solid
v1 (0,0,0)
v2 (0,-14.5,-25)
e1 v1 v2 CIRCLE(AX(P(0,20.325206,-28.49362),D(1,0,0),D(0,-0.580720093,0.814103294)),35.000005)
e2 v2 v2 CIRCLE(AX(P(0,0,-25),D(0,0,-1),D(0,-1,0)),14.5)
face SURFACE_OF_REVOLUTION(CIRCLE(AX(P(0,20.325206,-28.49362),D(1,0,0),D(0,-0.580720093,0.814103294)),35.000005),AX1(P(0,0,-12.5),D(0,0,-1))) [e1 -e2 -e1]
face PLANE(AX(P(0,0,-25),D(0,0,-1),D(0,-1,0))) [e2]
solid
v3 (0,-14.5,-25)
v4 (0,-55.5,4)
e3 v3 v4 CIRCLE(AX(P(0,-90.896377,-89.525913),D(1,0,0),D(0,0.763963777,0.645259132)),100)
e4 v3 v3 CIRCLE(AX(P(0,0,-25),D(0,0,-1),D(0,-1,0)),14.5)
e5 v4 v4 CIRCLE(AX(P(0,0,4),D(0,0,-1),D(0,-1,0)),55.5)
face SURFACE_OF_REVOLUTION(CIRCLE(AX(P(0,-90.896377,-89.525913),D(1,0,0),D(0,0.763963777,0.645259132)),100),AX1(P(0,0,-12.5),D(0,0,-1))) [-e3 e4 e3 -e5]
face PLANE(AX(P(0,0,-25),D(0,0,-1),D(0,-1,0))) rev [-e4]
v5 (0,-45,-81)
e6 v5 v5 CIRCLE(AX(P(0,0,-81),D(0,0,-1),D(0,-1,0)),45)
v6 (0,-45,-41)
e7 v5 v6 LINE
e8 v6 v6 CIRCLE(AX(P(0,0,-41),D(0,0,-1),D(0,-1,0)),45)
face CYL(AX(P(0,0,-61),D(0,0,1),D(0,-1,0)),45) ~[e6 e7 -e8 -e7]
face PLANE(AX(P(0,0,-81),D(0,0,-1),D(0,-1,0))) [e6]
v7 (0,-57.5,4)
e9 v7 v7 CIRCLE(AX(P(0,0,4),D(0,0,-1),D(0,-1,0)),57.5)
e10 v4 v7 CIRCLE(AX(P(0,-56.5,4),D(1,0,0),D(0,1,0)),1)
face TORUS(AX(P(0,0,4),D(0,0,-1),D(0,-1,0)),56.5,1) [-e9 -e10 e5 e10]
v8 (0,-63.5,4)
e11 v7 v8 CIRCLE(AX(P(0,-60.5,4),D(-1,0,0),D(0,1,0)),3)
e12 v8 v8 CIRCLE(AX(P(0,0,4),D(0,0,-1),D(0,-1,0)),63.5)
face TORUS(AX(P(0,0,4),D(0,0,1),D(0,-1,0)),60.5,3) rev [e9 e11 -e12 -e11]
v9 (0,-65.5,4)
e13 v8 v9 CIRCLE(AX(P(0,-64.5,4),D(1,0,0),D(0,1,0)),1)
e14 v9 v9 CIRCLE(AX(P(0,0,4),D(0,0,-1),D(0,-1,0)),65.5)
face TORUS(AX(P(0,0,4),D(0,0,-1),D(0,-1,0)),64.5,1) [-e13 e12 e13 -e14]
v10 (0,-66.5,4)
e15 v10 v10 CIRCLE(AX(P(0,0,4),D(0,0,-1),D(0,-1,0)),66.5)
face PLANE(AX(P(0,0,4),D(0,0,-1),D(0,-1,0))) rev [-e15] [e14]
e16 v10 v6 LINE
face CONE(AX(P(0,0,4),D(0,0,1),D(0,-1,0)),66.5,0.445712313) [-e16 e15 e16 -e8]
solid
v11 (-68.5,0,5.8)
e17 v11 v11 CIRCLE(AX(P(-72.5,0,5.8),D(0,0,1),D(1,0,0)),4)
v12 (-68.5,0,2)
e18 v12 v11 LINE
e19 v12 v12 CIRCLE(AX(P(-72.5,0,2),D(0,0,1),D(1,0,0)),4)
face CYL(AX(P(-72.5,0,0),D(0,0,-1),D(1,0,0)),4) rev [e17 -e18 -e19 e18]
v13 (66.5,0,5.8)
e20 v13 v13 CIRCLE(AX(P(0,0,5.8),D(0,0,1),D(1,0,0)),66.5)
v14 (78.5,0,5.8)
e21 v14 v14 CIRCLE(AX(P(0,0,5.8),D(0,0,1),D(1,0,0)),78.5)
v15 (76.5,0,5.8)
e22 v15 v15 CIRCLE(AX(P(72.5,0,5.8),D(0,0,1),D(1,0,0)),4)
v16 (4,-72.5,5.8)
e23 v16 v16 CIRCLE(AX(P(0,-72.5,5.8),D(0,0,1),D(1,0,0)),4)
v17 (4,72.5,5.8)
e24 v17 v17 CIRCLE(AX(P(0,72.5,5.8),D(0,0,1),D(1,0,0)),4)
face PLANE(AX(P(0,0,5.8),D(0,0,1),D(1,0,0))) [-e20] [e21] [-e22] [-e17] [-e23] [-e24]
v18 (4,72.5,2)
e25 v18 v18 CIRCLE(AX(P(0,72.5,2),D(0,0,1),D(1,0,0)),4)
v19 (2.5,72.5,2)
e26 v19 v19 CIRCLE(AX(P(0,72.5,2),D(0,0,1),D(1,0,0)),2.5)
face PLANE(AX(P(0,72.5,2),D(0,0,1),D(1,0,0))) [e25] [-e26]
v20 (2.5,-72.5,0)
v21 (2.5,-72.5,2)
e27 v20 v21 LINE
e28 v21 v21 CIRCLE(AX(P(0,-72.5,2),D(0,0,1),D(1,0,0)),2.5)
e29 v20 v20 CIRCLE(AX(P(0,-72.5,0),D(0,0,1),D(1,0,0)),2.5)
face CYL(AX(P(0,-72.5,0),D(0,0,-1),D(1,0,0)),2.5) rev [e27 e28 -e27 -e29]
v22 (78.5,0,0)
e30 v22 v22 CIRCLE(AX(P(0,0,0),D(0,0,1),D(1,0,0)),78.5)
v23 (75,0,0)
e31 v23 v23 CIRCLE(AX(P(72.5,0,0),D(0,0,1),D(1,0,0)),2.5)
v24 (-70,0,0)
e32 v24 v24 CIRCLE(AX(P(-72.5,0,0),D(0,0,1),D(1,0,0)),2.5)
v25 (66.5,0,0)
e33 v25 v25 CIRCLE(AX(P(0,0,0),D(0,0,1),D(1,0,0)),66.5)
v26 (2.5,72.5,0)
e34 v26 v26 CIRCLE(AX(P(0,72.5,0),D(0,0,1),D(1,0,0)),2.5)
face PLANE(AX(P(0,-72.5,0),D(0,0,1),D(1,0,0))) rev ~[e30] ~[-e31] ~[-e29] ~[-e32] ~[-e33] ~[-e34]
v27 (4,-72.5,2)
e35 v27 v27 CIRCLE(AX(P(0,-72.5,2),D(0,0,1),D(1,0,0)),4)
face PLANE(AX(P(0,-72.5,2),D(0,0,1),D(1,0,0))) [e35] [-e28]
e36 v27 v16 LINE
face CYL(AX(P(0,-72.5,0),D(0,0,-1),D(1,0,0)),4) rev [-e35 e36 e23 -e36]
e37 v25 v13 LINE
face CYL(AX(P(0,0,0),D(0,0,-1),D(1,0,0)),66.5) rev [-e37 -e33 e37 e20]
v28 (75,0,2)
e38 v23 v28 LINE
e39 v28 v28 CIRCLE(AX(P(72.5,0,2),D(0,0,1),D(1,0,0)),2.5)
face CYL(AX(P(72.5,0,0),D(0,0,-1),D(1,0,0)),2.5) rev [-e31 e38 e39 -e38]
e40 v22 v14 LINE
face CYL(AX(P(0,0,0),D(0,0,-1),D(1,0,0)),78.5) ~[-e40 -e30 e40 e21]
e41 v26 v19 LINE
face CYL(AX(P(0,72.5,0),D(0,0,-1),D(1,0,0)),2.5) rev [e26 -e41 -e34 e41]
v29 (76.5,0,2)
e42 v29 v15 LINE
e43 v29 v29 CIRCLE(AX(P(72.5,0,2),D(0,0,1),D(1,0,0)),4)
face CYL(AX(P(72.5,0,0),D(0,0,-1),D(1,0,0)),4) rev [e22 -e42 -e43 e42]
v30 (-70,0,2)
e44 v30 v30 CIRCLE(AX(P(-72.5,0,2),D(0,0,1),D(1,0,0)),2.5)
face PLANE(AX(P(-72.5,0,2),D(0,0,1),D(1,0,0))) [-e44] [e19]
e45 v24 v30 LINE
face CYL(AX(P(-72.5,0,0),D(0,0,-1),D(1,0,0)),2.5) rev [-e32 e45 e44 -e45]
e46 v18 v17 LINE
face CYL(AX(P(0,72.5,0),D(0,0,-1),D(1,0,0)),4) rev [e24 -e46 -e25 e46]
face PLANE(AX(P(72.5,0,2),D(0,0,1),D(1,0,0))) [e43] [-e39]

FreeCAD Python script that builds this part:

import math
import FreeCAD as App
import Part
import Sketcher

V = App.Vector
Q = App.Units.Quantity

doc = App.newDocument("Part")
params = doc.addObject("Spreadsheet::Sheet", "Params")
for row, (alias, value) in enumerate([
    ("sketch1_diameter", "157 mm"),
    ("sketch1_diameter2", "8 mm"),
    ("sketch1_diameter3", "133 mm"),
    ("pad1_length", "5.8 mm"),
    ("sketch2_diameter", "8 mm"),
    ("sketch2_diameter2", "5 mm"),
    ("pad2_length", "2 mm"),
    ("sketch3_radius", "100 mm"),
    ("sketch3_radius2", "1 mm"),
    ("sketch3_radius3", "3 mm"),
    ("sketch3_width", "1 mm"),
    ("sketch3_width2", "45 mm"),
    ("revolution_angle", "360 deg"),
    ("sketch4_height", "25 mm"),
    ("sketch4_width", "14.5 mm"),
    ("revolution2_angle", "360 deg"),
], start=1):
    params.set(f"A{row}", alias)
    params.set(f"B{row}", "=" + value)
    params.setAlias(f"B{row}", alias)

body = doc.addObject("PartDesign::Body", "Body")

# Sketch on XY plane
sketch1 = body.newObject("Sketcher::SketchObject", "Sketch")
sketch1.AttachmentSupport = (doc.getObject("XY_Plane"), [""])
sketch1.MapMode = "FlatFace"
sketch1.addGeometry([
    Part.Circle(V(0, 0, 0), V(0, 0, 1), 78.5),  # 0
    Part.Circle(V(0, -72.5, 0), V(0, 0, 1), 4),  # 1
    Part.Circle(V(-72.5, 0, 0), V(0, 0, 1), 4),  # 2
    Part.Circle(V(0, 0, 0), V(0, 0, 1), 66.5),  # 3
    Part.Circle(V(72.5, 0, 0), V(0, 0, 1), 4),  # 4
    Part.Circle(V(0, 72.5, 0), V(0, 0, 1), 4),  # 5
], False)
sketch1.addConstraint([
    Sketcher.Constraint("Coincident", 0, 3, -1, 1),
    Sketcher.Constraint("Coincident", 3, 3, -1, 1),
    Sketcher.Constraint("Equal", 1, 2),
    Sketcher.Constraint("Equal", 2, 4),
    Sketcher.Constraint("Equal", 4, 5),
    Sketcher.Constraint("Symmetric", 2, 3, 4, 3, -1, 1),
    Sketcher.Constraint("Symmetric", 1, 3, 5, 3, -1, 1),
    Sketcher.Constraint("PointOnObject", 1, 3, -2),
    Sketcher.Constraint("PointOnObject", 2, 3, -1),
    Sketcher.Constraint("Diameter", 0, Q("157 mm")),
    Sketcher.Constraint("Diameter", 1, Q("8 mm")),
    Sketcher.Constraint("Diameter", 3, Q("133 mm")),
    Sketcher.Constraint("DistanceX", 2, 3, 4, 3, Q("145 mm")),
    Sketcher.Constraint("DistanceY", 1, 3, 5, 3, Q("145 mm")),
])
sketch1.setExpression("Constraints[9]", "Params.sketch1_diameter")
sketch1.setExpression("Constraints[10]", "Params.sketch1_diameter2")
sketch1.setExpression("Constraints[11]", "Params.sketch1_diameter3")
pad1 = body.newObject("PartDesign::Pad", "Pad")
pad1.Profile = sketch1
pad1.setExpression("Length", "Params.pad1_length")

# Sketch on XY plane
sketch2 = body.newObject("Sketcher::SketchObject", "Sketch001")
sketch2.AttachmentSupport = (doc.getObject("XY_Plane"), [""])
sketch2.MapMode = "FlatFace"
sketch2.addGeometry([
    Part.Circle(V(0, -72.5, 0), V(0, 0, 1), 4),  # 0
    Part.Circle(V(0, -72.5, 0), V(0, 0, 1), 2.5),  # 1
    Part.Circle(V(-72.5, 0, 0), V(0, 0, 1), 4),  # 2
    Part.Circle(V(-72.5, 0, 0), V(0, 0, 1), 2.5),  # 3
    Part.Circle(V(0, 72.5, 0), V(0, 0, 1), 4),  # 4
    Part.Circle(V(0, 72.5, 0), V(0, 0, 1), 2.5),  # 5
    Part.Circle(V(72.5, 0, 0), V(0, 0, 1), 4),  # 6
    Part.Circle(V(72.5, 0, 0), V(0, 0, 1), 2.5),  # 7
], False)
sketch2.addConstraint([
    Sketcher.Constraint("Coincident", 1, 3, 0, 3),
    Sketcher.Constraint("Coincident", 3, 3, 2, 3),
    Sketcher.Constraint("Coincident", 5, 3, 4, 3),
    Sketcher.Constraint("Coincident", 7, 3, 6, 3),
    Sketcher.Constraint("Equal", 0, 2),
    Sketcher.Constraint("Equal", 1, 3),
    Sketcher.Constraint("Equal", 2, 4),
    Sketcher.Constraint("Equal", 3, 5),
    Sketcher.Constraint("Equal", 4, 6),
    Sketcher.Constraint("Equal", 5, 7),
    Sketcher.Constraint("Symmetric", 0, 3, 4, 3, -1, 1),
    Sketcher.Constraint("Symmetric", 2, 3, 6, 3, -1, 1),
    Sketcher.Constraint("PointOnObject", 0, 3, -2),
    Sketcher.Constraint("PointOnObject", 2, 3, -1),
    Sketcher.Constraint("Diameter", 0, Q("8 mm")),
    Sketcher.Constraint("Diameter", 1, Q("5 mm")),
    Sketcher.Constraint("DistanceY", 0, 3, 4, 3, Q("145 mm")),
    Sketcher.Constraint("DistanceX", 2, 3, 6, 3, Q("145 mm")),
])
sketch2.setExpression("Constraints[14]", "Params.sketch2_diameter")
sketch2.setExpression("Constraints[15]", "Params.sketch2_diameter2")
pad2 = body.newObject("PartDesign::Pad", "Pad001")
pad2.Profile = sketch2
pad2.setExpression("Length", "Params.pad2_length")
body2 = doc.addObject("PartDesign::Body", "Body001")

# Sketch on YZ plane
sketch3 = body2.newObject("Sketcher::SketchObject", "Sketch002")
sketch3.AttachmentSupport = (doc.getObject("YZ_Plane001"), [""])
sketch3.MapMode = "FlatFace"
sketch3.addGeometry([
    Part.LineSegment(V(0, -25, 0), V(-14.5, -25, 0)),  # 0
    Part.ArcOfCircle(Part.Circle(V(-90.9, -89.5, 0), V(0, 0, 1), 100), math.radians(40), math.radians(69)),  # 1
    Part.ArcOfCircle(Part.Circle(V(-56.5, 4, 0), V(0, 0, 1), 1), math.radians(0), math.radians(180)),  # 2
    Part.ArcOfCircle(Part.Circle(V(-60.5, 4, 0), V(0, 0, 1), 3), math.radians(180), math.radians(360)),  # 3
    Part.ArcOfCircle(Part.Circle(V(-64.5, 4, 0), V(0, 0, 1), 1), math.radians(0), math.radians(180)),  # 4
    Part.LineSegment(V(-65.5, 4, 0), V(-66.5, 4, 0)),  # 5
    Part.LineSegment(V(-66.5, 4, 0), V(-45, -41, 0)),  # 6
    Part.LineSegment(V(-45, -41, 0), V(-45, -81, 0)),  # 7
    Part.LineSegment(V(-45, -81, 0), V(0, -81, 0)),  # 8
    Part.LineSegment(V(0, -81, 0), V(0, -25, 0)),  # 9
], False)
sketch3.addConstraint([
    Sketcher.Constraint("Coincident", 0, 2, 1, 1),
    Sketcher.Constraint("Coincident", 1, 2, 2, 1),
    Sketcher.Constraint("Tangent", 2, 2, 3, 2),
    Sketcher.Constraint("Tangent", 3, 1, 4, 1),
    Sketcher.Constraint("Coincident", 4, 2, 5, 1),
    Sketcher.Constraint("Coincident", 5, 2, 6, 1),
    Sketcher.Constraint("Coincident", 6, 2, 7, 1),
    Sketcher.Constraint("Coincident", 7, 2, 8, 1),
    Sketcher.Constraint("Coincident", 8, 2, 9, 1),
    Sketcher.Constraint("Coincident", 9, 2, 0, 1),
    Sketcher.Constraint("Horizontal", 0),
    Sketcher.Constraint("Horizontal", 5),
    Sketcher.Constraint("Vertical", 7),
    Sketcher.Constraint("Horizontal", 8),
    Sketcher.Constraint("Vertical", 9),
    Sketcher.Constraint("Equal", 2, 4),
    Sketcher.Constraint("PointOnObject", 8, 2, -2),
    Sketcher.Constraint("Horizontal", 2, 3, 3, 3),
    Sketcher.Constraint("Horizontal", 3, 3, 4, 3),
    Sketcher.Constraint("Horizontal", 4, 3, 1, 2),
    Sketcher.Constraint("Horizontal", 3, 1, 4, 2),
    Sketcher.Constraint("Radius", 1, Q("100 mm")),
    Sketcher.Constraint("Radius", 2, Q("1 mm")),
    Sketcher.Constraint("Radius", 3, Q("3 mm")),
    Sketcher.Constraint("DistanceX", 5, 2, 5, 1, Q("1 mm")),
    Sketcher.Constraint("DistanceX", 8, 1, 8, 2, Q("45 mm")),
    Sketcher.Constraint("DistanceY", 7, 2, 7, 1, Q("40 mm")),
    Sketcher.Constraint("DistanceY", 9, 1, 9, 2, Q("56 mm")),
    Sketcher.Constraint("DistanceX", 0, 2, 0, 1, Q("14.5 mm")),
    Sketcher.Constraint("DistanceY", -1, 1, 2, 3, Q("4 mm")),
    Sketcher.Constraint("DistanceY", 0, 2, -1, 1, Q("25 mm")),
    Sketcher.Constraint("DistanceX", 2, 3, 0, 2, Q("42 mm")),
])
sketch3.setExpression("Constraints[21]", "Params.sketch3_radius")
sketch3.setExpression("Constraints[22]", "Params.sketch3_radius2")
sketch3.setExpression("Constraints[23]", "Params.sketch3_radius3")
sketch3.setExpression("Constraints[24]", "Params.sketch3_width")
sketch3.setExpression("Constraints[25]", "Params.sketch3_width2")
revolution = body2.newObject("PartDesign::Revolution", "Revolution")
revolution.Profile = sketch3
revolution.ReferenceAxis = (sketch3, ["V_Axis"])
revolution.setExpression("Angle", "Params.revolution_angle")
body3 = doc.addObject("PartDesign::Body", "Body002")

# Sketch on YZ plane
sketch4 = body3.newObject("Sketcher::SketchObject", "Sketch003")
sketch4.AttachmentSupport = (doc.getObject("YZ_Plane002"), [""])
sketch4.MapMode = "FlatFace"
sketch4.addGeometry([
    Part.ArcOfCircle(Part.Circle(V(20, -28, 0), V(0, 0, 1), 35), math.radians(126), math.radians(174)),
    Part.LineSegment(V(-14, -25, 0), V(0, -25, 0)),
    Part.LineSegment(V(0, -25, 0), V(0, 0, 0)),
], False)
sketch4.addConstraint([
    Sketcher.Constraint("Coincident", 0, 2, 1, 1),
    Sketcher.Constraint("Coincident", 1, 2, 2, 1),
    Sketcher.Constraint("Coincident", 2, 2, 0, 1),
    Sketcher.Constraint("Horizontal", 1),
    Sketcher.Constraint("Vertical", 2),
    Sketcher.Constraint("Coincident", 2, 2, -1, 1),
    Sketcher.Constraint("DistanceY", 2, 1, 2, 2, Q("25 mm")),
    Sketcher.Constraint("DistanceX", 1, 1, 1, 2, Q("14.5 mm")),
    Sketcher.Constraint("Radius", 0, Q("35.000005 mm")),
])
sketch4.setExpression("Constraints[6]", "Params.sketch4_height")
sketch4.setExpression("Constraints[7]", "Params.sketch4_width")
revolution2 = body3.newObject("PartDesign::Revolution", "Revolution001")
revolution2.Profile = sketch4
revolution2.ReferenceAxis = (sketch4, ["V_Axis"])
revolution2.setExpression("Angle", "Params.revolution2_angle")

doc.recompute()
